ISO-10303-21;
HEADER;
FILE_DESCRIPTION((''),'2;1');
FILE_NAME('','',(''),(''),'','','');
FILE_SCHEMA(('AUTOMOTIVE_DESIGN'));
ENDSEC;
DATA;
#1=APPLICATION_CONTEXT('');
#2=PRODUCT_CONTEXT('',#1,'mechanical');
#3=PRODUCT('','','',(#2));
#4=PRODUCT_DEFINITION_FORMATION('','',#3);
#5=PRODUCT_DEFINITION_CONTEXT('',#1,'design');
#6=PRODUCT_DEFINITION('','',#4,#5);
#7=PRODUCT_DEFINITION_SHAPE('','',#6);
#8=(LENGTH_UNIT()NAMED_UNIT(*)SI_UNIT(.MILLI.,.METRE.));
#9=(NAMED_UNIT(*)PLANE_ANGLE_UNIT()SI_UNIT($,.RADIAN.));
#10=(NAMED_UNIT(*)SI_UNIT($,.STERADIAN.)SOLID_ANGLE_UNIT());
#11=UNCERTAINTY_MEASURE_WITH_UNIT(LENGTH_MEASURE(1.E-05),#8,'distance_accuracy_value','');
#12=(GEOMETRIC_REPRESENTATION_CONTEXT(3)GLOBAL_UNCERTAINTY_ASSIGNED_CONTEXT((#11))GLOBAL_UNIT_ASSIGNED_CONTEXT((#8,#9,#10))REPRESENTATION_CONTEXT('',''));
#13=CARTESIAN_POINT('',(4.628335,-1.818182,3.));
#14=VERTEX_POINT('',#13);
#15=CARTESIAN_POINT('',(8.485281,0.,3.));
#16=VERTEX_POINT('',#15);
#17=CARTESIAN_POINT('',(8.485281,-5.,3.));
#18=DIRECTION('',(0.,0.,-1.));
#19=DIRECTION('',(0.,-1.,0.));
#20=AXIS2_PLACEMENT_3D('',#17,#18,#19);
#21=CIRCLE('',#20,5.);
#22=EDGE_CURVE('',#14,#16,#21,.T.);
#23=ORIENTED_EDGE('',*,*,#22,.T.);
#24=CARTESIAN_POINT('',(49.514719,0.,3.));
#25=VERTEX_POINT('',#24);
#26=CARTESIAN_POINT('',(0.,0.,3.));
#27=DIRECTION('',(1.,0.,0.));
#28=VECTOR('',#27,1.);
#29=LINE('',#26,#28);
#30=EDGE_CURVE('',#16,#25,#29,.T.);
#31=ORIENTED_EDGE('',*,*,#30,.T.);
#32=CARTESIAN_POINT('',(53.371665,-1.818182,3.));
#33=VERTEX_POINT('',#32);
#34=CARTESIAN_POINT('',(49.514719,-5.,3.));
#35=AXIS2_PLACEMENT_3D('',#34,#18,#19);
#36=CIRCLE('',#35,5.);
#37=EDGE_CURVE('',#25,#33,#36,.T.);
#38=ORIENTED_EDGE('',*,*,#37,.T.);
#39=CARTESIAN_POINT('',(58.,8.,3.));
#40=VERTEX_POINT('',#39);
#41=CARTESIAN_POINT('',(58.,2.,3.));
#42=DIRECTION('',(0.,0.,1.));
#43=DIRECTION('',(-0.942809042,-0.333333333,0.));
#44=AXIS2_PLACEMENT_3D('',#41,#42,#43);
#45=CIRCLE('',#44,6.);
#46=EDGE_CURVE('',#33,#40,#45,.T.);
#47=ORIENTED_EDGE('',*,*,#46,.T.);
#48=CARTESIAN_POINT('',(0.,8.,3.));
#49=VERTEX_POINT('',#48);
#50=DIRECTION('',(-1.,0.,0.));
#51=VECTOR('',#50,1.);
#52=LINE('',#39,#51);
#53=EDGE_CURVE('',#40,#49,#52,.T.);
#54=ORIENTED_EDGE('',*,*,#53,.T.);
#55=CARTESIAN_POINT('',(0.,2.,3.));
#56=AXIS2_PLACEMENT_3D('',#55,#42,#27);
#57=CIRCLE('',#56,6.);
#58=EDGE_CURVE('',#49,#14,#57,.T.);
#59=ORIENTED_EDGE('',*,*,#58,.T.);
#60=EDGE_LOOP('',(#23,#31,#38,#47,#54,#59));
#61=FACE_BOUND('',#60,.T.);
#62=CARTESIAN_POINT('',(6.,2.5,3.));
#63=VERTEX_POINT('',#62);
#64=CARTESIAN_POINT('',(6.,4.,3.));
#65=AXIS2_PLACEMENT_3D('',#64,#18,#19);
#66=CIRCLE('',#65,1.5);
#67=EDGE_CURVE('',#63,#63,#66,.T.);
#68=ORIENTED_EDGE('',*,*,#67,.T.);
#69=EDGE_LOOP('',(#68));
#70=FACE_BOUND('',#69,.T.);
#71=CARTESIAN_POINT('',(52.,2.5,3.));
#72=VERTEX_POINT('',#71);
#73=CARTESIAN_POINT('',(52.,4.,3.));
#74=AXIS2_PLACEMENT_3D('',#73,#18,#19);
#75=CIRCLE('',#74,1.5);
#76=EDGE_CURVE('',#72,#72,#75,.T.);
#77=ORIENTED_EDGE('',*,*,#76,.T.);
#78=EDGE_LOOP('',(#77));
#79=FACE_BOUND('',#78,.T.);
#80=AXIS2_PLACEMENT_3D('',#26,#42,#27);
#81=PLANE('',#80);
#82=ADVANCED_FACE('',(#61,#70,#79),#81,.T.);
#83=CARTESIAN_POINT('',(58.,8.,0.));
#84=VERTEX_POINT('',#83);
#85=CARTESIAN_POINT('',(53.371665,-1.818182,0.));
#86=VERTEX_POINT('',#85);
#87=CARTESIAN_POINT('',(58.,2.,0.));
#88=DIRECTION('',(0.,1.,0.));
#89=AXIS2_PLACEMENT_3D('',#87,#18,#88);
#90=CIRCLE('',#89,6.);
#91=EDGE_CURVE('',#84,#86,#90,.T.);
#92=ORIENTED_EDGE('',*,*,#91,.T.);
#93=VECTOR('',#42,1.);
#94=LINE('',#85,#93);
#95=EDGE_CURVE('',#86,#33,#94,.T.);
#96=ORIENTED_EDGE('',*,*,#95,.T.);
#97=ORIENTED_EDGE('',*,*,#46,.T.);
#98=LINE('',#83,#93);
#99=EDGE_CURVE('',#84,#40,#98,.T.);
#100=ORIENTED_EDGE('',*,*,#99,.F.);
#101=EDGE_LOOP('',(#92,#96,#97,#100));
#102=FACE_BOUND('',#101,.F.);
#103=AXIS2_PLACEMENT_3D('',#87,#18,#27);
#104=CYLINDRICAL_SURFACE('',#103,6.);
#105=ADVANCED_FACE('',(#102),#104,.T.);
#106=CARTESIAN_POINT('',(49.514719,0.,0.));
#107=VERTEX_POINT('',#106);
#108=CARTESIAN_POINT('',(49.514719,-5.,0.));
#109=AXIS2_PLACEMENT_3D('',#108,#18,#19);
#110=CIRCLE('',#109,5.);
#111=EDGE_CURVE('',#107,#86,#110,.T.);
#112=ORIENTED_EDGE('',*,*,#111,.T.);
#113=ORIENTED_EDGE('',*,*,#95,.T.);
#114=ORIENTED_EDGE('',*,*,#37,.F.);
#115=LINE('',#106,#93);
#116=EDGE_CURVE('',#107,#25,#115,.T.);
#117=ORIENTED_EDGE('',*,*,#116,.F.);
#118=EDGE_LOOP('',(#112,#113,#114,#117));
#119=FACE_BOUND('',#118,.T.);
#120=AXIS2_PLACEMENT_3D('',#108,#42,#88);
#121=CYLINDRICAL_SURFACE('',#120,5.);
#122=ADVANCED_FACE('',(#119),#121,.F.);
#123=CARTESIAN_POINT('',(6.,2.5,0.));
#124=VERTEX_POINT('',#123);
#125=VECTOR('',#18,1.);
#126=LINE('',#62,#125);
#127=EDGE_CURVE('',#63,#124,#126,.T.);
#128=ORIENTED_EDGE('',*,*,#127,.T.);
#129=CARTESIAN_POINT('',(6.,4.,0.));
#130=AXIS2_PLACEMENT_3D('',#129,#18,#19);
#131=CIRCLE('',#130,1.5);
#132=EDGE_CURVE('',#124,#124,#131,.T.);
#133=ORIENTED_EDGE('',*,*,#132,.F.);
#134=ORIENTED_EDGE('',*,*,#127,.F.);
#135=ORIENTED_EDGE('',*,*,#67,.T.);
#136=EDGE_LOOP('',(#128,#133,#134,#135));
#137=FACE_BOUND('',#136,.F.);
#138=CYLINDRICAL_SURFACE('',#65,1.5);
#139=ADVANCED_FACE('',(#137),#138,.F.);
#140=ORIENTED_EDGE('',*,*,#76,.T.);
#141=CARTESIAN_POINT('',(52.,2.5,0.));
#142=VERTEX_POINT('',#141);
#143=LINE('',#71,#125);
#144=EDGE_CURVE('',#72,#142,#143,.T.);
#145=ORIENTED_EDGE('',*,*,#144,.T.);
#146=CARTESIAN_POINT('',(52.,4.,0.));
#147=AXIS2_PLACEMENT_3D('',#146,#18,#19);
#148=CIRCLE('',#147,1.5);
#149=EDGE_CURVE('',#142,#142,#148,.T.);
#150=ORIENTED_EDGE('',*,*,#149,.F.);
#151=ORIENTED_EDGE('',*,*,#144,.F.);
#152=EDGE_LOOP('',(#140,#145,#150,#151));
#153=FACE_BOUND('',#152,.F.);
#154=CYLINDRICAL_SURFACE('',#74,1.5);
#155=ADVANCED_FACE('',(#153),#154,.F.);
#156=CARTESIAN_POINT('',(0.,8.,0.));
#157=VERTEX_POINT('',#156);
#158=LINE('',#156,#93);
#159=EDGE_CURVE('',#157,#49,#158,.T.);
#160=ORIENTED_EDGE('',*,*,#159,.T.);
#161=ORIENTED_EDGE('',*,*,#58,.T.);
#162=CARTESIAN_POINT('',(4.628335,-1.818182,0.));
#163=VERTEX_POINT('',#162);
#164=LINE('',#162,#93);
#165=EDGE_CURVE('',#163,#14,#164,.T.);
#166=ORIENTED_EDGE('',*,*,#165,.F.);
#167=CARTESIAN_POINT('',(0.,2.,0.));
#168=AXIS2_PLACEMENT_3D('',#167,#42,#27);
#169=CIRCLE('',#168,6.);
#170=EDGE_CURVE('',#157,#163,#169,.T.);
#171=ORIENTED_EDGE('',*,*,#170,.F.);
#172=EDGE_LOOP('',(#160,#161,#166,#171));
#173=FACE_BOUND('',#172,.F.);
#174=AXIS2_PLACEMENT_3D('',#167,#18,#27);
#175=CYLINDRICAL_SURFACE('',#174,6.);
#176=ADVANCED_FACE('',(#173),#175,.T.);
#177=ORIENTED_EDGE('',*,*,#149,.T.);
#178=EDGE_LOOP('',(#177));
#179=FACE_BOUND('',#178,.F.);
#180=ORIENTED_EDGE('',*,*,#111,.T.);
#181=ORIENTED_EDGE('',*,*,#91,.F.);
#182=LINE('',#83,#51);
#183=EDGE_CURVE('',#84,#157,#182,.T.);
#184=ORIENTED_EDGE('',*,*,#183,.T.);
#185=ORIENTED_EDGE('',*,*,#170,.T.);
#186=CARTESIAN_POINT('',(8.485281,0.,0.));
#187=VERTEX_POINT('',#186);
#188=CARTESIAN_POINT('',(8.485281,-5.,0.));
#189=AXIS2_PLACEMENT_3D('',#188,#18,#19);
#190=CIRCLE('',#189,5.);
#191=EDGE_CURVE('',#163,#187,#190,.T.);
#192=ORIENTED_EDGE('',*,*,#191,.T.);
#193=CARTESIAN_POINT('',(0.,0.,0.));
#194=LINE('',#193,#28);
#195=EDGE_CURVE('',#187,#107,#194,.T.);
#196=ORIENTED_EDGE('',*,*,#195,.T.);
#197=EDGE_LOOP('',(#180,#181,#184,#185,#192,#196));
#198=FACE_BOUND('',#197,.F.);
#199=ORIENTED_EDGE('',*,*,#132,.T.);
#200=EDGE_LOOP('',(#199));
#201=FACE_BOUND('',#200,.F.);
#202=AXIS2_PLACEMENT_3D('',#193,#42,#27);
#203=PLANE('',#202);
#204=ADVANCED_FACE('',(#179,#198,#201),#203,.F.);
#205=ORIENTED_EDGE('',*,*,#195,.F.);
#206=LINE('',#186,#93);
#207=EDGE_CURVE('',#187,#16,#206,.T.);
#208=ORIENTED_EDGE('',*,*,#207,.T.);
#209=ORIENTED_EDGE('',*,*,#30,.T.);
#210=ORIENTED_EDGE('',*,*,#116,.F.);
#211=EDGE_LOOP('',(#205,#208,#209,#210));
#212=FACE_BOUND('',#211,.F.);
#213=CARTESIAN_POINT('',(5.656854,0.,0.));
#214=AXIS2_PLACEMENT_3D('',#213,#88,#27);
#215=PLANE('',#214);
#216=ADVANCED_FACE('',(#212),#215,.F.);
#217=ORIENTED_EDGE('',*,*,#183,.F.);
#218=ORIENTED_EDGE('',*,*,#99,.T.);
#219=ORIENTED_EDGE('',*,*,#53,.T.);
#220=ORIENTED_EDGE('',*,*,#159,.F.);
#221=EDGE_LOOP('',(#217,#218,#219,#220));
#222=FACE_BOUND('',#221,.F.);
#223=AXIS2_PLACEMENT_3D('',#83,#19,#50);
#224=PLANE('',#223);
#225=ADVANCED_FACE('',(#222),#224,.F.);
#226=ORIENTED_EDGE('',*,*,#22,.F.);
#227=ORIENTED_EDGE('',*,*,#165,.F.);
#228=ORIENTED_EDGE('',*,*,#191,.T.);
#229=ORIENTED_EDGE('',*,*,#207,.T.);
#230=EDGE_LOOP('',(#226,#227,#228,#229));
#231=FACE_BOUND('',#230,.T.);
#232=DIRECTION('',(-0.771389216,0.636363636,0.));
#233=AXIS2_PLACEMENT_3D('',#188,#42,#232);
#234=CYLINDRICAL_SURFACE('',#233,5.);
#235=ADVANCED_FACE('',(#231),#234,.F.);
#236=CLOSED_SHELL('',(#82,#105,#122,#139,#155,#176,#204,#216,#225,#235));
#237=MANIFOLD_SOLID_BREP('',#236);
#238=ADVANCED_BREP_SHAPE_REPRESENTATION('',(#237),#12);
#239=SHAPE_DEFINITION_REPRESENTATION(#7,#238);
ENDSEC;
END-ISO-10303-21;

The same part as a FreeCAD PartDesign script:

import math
import FreeCAD as App
import Part
import Sketcher

V = App.Vector
Q = App.Units.Quantity


def edges_at(feature, points):
    """Names of the edges that pass closest to the given points."""
    edges = feature.Shape.Edges
    near = lambda p: min(range(len(edges)), key=lambda i: edges[i].distToShape(Part.Vertex(*p))[0])
    return sorted({f"Edge{near(p) + 1}" for p in points})

doc = App.newDocument("Part")
body = doc.addObject("PartDesign::Body", "Body")

# Sketch on XY plane
sketch1 = body.newObject("Sketcher::SketchObject", "Sketch")
sketch1.AttachmentSupport = (doc.getObject("XY_Plane"), [""])
sketch1.MapMode = "FlatFace"
sketch1.addGeometry([
    Part.ArcOfCircle(Part.Circle(V(0, 2, 0), V(0, 0, 1), 6), math.radians(90), math.radians(341)),
    Part.LineSegment(V(6, 0, 0), V(52, 0, 0)),
    Part.ArcOfCircle(Part.Circle(V(58, 2, 0), V(0, 0, 1), 6), math.radians(-161), math.radians(90)),
    Part.LineSegment(V(58, 8, 0), V(0, 8, 0)),
], False)
sketch1.addConstraint([
    Sketcher.Constraint("Coincident", 0, 2, 1, 1),
    Sketcher.Constraint("Coincident", 1, 2, 2, 1),
    Sketcher.Constraint("Tangent", 2, 2, 3, 1),
    Sketcher.Constraint("Tangent", 3, 2, 0, 1),
    Sketcher.Constraint("Horizontal", 1),
    Sketcher.Constraint("Horizontal", 3),
    Sketcher.Constraint("Equal", 0, 2),
    Sketcher.Constraint("PointOnObject", 0, 3, -2),
    Sketcher.Constraint("PointOnObject", 0, 2, -1),
    Sketcher.Constraint("Radius", 0, Q("6 mm")),
    Sketcher.Constraint("DistanceX", 3, 2, 3, 1, Q("58 mm")),
    Sketcher.Constraint("DistanceY", -1, 1, 2, 2, Q("8 mm")),
])
pad1 = body.newObject("PartDesign::Pad", "Pad")
pad1.Profile = sketch1
pad1.Length = 3
doc.recompute()

fillet = body.newObject("PartDesign::Fillet", "Fillet")
fillet.Base = (pad1, edges_at(pad1, [(5.657, 0, 1.5), (52.343, 0, 1.5)]))
fillet.Radius = 5

# Sketch on XY plane
sketch2 = body.newObject("Sketcher::SketchObject", "Sketch001")
sketch2.AttachmentSupport = (doc.getObject("XY_Plane"), [""])
sketch2.MapMode = "FlatFace"
sketch2.AttachmentOffset = App.Placement(V(0, 0, 3), App.Rotation())
sketch2.addGeometry([
    Part.Circle(V(6, 4, 0), V(0, 0, 1), 1.5),
    Part.Circle(V(52, 4, 0), V(0, 0, 1), 1.5),
], False)
sketch2.addConstraint([
    Sketcher.Constraint("Equal", 0, 1),
    Sketcher.Constraint("Horizontal", 0, 3, 1, 3),
    Sketcher.Constraint("Diameter", 0, Q("3 mm")),
    Sketcher.Constraint("DistanceX", -1, 1, 0, 3, Q("6 mm")),
    Sketcher.Constraint("DistanceY", -1, 1, 0, 3, Q("4 mm")),
    Sketcher.Constraint("DistanceX", -1, 1, 1, 3, Q("52 mm")),
])
doc.recompute()
hole = body.newObject("PartDesign::Hole", "Hole")
hole.Profile = sketch2
hole.ThreadType = "None"
hole.Diameter = 3
hole.DepthType = "ThroughAll"

doc.recompute()
